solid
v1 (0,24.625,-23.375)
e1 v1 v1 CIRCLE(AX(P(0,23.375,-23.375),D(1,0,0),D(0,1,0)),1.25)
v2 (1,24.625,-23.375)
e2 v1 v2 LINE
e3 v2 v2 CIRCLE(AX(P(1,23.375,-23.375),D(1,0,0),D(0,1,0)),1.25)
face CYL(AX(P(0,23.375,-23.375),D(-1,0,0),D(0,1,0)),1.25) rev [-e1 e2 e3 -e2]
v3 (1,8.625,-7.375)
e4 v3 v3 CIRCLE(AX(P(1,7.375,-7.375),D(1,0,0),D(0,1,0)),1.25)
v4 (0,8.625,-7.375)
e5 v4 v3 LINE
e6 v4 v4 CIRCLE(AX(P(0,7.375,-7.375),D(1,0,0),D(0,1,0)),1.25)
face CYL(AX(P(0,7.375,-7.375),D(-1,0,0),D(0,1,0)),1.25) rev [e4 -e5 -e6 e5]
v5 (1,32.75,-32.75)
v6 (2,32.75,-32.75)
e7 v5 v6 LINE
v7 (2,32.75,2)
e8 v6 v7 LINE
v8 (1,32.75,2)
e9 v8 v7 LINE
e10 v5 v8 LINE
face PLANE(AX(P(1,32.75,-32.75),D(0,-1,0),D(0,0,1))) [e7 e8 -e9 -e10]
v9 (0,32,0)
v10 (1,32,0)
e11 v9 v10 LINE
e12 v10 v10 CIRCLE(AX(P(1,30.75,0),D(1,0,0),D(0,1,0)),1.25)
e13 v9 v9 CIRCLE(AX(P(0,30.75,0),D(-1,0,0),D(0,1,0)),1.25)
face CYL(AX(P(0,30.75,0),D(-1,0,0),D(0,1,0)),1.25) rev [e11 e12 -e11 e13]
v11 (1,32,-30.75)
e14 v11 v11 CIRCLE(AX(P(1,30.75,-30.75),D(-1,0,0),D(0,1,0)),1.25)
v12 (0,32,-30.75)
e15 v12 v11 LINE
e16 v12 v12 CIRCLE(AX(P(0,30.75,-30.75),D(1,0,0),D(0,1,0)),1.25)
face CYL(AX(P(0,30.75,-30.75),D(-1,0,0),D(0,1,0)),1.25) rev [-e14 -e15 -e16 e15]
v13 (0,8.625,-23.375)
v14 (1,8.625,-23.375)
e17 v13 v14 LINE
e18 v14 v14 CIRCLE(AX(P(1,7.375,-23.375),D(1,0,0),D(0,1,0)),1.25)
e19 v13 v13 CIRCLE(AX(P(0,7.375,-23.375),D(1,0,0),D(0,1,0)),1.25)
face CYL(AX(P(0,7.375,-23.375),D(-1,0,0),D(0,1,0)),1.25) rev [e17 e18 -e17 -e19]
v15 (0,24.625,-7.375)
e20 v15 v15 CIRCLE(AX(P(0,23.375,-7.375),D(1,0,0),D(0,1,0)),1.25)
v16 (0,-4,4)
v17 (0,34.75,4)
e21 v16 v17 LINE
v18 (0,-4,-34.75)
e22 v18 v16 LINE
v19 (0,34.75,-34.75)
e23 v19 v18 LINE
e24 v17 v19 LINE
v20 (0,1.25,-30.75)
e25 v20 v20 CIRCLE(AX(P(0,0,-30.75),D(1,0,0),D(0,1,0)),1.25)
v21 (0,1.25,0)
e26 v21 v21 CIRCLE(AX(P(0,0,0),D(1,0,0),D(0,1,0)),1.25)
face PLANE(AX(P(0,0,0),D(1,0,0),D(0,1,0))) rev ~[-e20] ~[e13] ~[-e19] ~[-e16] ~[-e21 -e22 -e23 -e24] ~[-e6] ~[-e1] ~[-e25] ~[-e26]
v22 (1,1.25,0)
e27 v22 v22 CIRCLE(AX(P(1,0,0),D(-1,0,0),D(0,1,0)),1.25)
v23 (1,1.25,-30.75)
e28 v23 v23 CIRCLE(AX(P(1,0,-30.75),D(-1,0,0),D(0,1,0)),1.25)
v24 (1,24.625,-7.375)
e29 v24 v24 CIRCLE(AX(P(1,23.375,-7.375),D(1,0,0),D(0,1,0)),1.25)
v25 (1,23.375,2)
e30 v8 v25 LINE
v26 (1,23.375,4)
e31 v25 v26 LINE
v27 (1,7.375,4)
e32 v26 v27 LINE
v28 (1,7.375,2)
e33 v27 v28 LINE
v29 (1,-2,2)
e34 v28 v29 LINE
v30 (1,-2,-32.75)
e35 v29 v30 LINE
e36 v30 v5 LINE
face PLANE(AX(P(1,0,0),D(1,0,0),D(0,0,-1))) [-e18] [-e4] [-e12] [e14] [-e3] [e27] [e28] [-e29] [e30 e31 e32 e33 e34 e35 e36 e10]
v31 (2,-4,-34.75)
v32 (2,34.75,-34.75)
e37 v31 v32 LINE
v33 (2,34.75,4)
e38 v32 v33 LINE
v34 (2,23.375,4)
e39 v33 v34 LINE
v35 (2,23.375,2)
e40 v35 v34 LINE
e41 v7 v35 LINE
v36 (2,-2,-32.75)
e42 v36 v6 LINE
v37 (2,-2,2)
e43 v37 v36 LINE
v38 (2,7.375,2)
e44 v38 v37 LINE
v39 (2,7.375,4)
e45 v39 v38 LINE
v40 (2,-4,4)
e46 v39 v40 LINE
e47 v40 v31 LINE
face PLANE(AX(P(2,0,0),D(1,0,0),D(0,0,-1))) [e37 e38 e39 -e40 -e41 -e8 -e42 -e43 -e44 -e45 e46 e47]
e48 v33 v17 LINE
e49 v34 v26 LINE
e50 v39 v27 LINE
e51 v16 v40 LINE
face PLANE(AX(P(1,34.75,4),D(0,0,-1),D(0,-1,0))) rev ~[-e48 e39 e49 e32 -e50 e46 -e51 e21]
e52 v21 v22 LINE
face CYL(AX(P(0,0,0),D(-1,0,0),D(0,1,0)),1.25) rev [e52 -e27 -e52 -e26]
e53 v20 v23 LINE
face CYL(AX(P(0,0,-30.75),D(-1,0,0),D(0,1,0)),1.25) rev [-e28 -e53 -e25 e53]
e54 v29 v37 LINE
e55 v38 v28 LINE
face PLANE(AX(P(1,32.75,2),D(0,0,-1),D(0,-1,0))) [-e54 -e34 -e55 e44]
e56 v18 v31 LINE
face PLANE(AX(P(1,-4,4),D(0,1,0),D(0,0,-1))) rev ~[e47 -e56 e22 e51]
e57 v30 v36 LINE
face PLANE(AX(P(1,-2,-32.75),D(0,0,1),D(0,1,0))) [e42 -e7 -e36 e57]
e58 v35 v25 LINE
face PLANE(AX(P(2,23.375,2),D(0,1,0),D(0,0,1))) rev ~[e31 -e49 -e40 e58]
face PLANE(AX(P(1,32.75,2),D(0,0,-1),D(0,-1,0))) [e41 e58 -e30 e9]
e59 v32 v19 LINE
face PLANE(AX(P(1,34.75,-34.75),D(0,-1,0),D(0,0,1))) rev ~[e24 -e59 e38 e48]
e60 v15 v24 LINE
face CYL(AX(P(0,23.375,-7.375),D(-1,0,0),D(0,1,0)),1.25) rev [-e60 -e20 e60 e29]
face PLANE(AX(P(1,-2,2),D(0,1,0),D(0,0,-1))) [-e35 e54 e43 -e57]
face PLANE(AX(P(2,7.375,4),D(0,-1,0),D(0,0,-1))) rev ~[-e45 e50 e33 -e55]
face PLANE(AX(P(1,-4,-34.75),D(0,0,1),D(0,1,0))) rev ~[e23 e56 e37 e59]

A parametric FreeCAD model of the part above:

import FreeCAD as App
import Part
import Sketcher
Q = App.Units.Quantity


def add_polygon(sketch, points):
    """Adds a closed chain of lines whose ends are joined by coincident constraints."""
    first, n = sketch.GeometryCount, len(points)
    for a, b in zip(points, points[1:] + points[:1]):
        sketch.addGeometry(Part.LineSegment(App.Vector(*a, 0), App.Vector(*b, 0)), False)
    for i in range(n):
        sketch.addConstraint(Sketcher.Constraint("Coincident", first + i, 2, first + (i + 1) % n, 1))

doc = App.newDocument("Part")
params = doc.addObject("Spreadsheet::Sheet", "Params")
for row, (alias, value) in enumerate([
    ("sketch1_diameter", "2.5 mm"),
    ("pad1_length", "1 mm"),
    ("sketch2_width", "38.75 mm"),
    ("pad2_length", "1 mm"),
    ("sketch3_width", "16 mm"),
    ("sketch3_height", "2 mm"),
    ("pocket1_length", "1 mm"),
], start=1):
    params.set(f"A{row}", alias)
    params.set(f"B{row}", "=" + value)
    params.setAlias(f"B{row}", alias)

body = doc.addObject("PartDesign::Body", "Body")

# Sketch on YZ plane
sketch1 = body.newObject("Sketcher::SketchObject", "Sketch")
sketch1.AttachmentSupport = (doc.getObject("YZ_Plane"), [""])
sketch1.MapMode = "FlatFace"
add_polygon(sketch1, [(34.8, 4), (-4, 4), (-4, -34.8), (34.8, -34.8)])  # lines 0-3
sketch1.addGeometry(Part.Circle(App.Vector(30.8, 0, 0), App.Vector(0, 0, 1), 1.2), False)  # 4
sketch1.addGeometry(Part.Circle(App.Vector(30.8, -30.8, 0), App.Vector(0, 0, 1), 1.2), False)  # 5
sketch1.addGeometry(Part.Circle(App.Vector(0, -30.8, 0), App.Vector(0, 0, 1), 1.2), False)  # 6
sketch1.addGeometry(Part.Circle(App.Vector(0, 0, 0), App.Vector(0, 0, 1), 1.2), False)  # 7
sketch1.addGeometry(Part.Circle(App.Vector(7.4, -23.4, 0), App.Vector(0, 0, 1), 1.2), False)  # 8
sketch1.addGeometry(Part.Circle(App.Vector(23.4, -23.4, 0), App.Vector(0, 0, 1), 1.2), False)  # 9
sketch1.addGeometry(Part.Circle(App.Vector(7.4, -7.4, 0), App.Vector(0, 0, 1), 1.2), False)  # 10
sketch1.addGeometry(Part.Circle(App.Vector(23.4, -7.4, 0), App.Vector(0, 0, 1), 1.2), False)  # 11
sketch1.addConstraint([
    Sketcher.Constraint("Horizontal", 0),
    Sketcher.Constraint("Vertical", 1),
    Sketcher.Constraint("Horizontal", 2),
    Sketcher.Constraint("Vertical", 3),
    Sketcher.Constraint("Coincident", 7, 3, -1, 1),
    Sketcher.Constraint("Equal", 4, 5),
    Sketcher.Constraint("Equal", 5, 6),
    Sketcher.Constraint("Equal", 6, 7),
    Sketcher.Constraint("Equal", 7, 8),
    Sketcher.Constraint("Equal", 8, 9),
    Sketcher.Constraint("Equal", 9, 10),
    Sketcher.Constraint("Equal", 10, 11),
    Sketcher.Constraint("PointOnObject", 4, 3, -1),
    Sketcher.Constraint("PointOnObject", 6, 3, -2),
    Sketcher.Constraint("Horizontal", 5, 3, 6, 3),
    Sketcher.Constraint("Horizontal", 8, 3, 9, 3),
    Sketcher.Constraint("Horizontal", 10, 3, 11, 3),
    Sketcher.Constraint("Vertical", 4, 3, 5, 3),
    Sketcher.Constraint("Vertical", 8, 3, 10, 3),
    Sketcher.Constraint("Vertical", 9, 3, 11, 3),
    Sketcher.Constraint("Equal", 2, 1),
    Sketcher.Constraint("Diameter", 4, Q("2.5 mm")),
    Sketcher.Constraint("DistanceX", -1, 1, 4, 3, Q("30.75 mm")),
    Sketcher.Constraint("DistanceY", 5, 3, -1, 1, Q("30.75 mm")),
    Sketcher.Constraint("DistanceX", 0, 2, -1, 1, Q("4 mm")),
    Sketcher.Constraint("DistanceY", -1, 1, 0, 2, Q("4 mm")),
    Sketcher.Constraint("DistanceX", 8, 3, 9, 3, Q("16 mm")),
    Sketcher.Constraint("DistanceY", 8, 3, 10, 3, Q("16 mm")),
    Sketcher.Constraint("DistanceY", 1, 2, 6, 3, Q("4 mm")),
    Sketcher.Constraint("DistanceX", -1, 1, 8, 3, Q("7.375 mm")),
    Sketcher.Constraint("DistanceY", 8, 3, -1, 1, Q("23.375 mm")),
])
sketch1.setExpression("Constraints[25]", "Params.sketch1_diameter")
pad1 = body.newObject("PartDesign::Pad", "Pad")
pad1.Profile = sketch1
pad1.setExpression("Length", "Params.pad1_length")

# Sketch on YZ plane
sketch2 = body.newObject("Sketcher::SketchObject", "Sketch001")
sketch2.AttachmentSupport = (doc.getObject("YZ_Plane"), [""])
sketch2.MapMode = "FlatFace"
sketch2.AttachmentOffset = App.Placement(App.Vector(0, 0, 1), App.Rotation())
add_polygon(sketch2, [(35, 4), (-4, 4), (-4, -35), (35, -35)])  # lines 0-3
add_polygon(sketch2, [(-2, -33), (-2, 2), (33, 2), (33, -33)])  # lines 4-7
sketch2.addConstraint([
    Sketcher.Constraint("Horizontal", 0),
    Sketcher.Constraint("Vertical", 1),
    Sketcher.Constraint("Horizontal", 2),
    Sketcher.Constraint("Vertical", 3),
    Sketcher.Constraint("Vertical", 4),
    Sketcher.Constraint("Horizontal", 5),
    Sketcher.Constraint("Vertical", 6),
    Sketcher.Constraint("Horizontal", 7),
    Sketcher.Constraint("Equal", 2, 1),
    Sketcher.Constraint("Equal", 7, 4),
    Sketcher.Constraint("DistanceX", 4, 2, -1, 1, Q("2 mm")),
    Sketcher.Constraint("DistanceY", -1, 1, 4, 2, Q("2 mm")),
    Sketcher.Constraint("DistanceX", 0, 2, 4, 2, Q("2 mm")),
    Sketcher.Constraint("DistanceY", 4, 2, 0, 2, Q("2 mm")),
    Sketcher.Constraint("DistanceX", 5, 2, 3, 2, Q("2 mm")),
    Sketcher.Constraint("DistanceX", 0, 2, 0, 1, Q("38.75 mm")),
])
sketch2.setExpression("Constraints[23]", "Params.sketch2_width")
pad2 = body.newObject("PartDesign::Pad", "Pad001")
pad2.Profile = sketch2
pad2.setExpression("Length", "Params.pad2_length")

# Sketch on YZ plane
sketch3 = body.newObject("Sketcher::SketchObject", "Sketch002")
sketch3.AttachmentSupport = (doc.getObject("YZ_Plane"), [""])
sketch3.MapMode = "FlatFace"
sketch3.AttachmentOffset = App.Placement(App.Vector(0, 0, 2), App.Rotation())
add_polygon(sketch3, [(7.4, 2), (23.4, 2), (23.4, 4), (7.4, 4)])  # lines 0-3
sketch3.addConstraint([
    Sketcher.Constraint("Horizontal", 0),
    Sketcher.Constraint("Vertical", 1),
    Sketcher.Constraint("Horizontal", 2),
    Sketcher.Constraint("Vertical", 3),
    Sketcher.Constraint("DistanceX", 0, 1, 0, 2, Q("16 mm")),
    Sketcher.Constraint("DistanceY", 1, 1, 1, 2, Q("2 mm")),
    Sketcher.Constraint("DistanceY", -1, 1, 0, 2, Q("2 mm")),
    Sketcher.Constraint("DistanceX", -1, 1, 0, 2, Q("23.375 mm")),
])
sketch3.setExpression("Constraints[8]", "Params.sketch3_width")
sketch3.setExpression("Constraints[9]", "Params.sketch3_height")
pocket1 = body.newObject("PartDesign::Pocket", "Pocket")
pocket1.Profile = sketch3
pocket1.setExpression("Length", "Params.pocket1_length")

doc.recompute()
